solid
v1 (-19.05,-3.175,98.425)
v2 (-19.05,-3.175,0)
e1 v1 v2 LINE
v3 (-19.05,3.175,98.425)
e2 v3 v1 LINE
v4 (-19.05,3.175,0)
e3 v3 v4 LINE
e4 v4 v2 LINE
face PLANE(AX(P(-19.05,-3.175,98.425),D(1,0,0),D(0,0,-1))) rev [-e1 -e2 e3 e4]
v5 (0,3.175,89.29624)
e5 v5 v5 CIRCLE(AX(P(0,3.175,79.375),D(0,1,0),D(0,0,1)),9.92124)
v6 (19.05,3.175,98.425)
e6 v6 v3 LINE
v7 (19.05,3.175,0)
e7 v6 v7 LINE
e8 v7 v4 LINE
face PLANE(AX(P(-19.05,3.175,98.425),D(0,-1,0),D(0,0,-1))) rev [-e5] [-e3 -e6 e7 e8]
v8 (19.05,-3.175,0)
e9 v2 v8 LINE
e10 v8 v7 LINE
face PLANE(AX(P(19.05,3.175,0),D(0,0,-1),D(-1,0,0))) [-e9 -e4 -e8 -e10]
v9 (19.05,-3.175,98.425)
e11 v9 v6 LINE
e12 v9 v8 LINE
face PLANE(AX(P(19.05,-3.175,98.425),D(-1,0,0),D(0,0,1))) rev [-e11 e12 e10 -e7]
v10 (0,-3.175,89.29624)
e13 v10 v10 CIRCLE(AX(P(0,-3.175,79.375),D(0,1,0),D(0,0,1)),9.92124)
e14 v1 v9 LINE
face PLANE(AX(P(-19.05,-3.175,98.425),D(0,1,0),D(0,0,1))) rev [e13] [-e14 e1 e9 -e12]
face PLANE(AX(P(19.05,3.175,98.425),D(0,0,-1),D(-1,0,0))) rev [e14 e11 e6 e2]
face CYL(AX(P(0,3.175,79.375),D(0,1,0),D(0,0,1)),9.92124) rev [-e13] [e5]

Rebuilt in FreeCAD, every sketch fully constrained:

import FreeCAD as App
import Part
import Sketcher
Q = App.Units.Quantity


def add_polygon(sketch, points):
    """Adds a closed chain of lines whose ends are joined by coincident constraints."""
    first, n = sketch.GeometryCount, len(points)
    for a, b in zip(points, points[1:] + points[:1]):
        sketch.addGeometry(Part.LineSegment(App.Vector(*a, 0), App.Vector(*b, 0)), False)
    for i in range(n):
        sketch.addConstraint(Sketcher.Constraint("Coincident", first + i, 2, first + (i + 1) % n, 1))

doc = App.newDocument("Part")
body = doc.addObject("PartDesign::Body", "Body")

# Sketch on XY plane
sketch1 = doc.addObject("Sketcher::SketchObject", "Sketch")
body.addObject(sketch1)
sketch1.AttachmentSupport = (doc.XY_Plane, [""])
sketch1.MapMode = "FlatFace"
add_polygon(sketch1, [(-19, 3), (-19, -3), (19, -3), (19, 3)])  # lines 0-3
sketch1.addConstraint(Sketcher.Constraint("Vertical", 0))
sketch1.addConstraint(Sketcher.Constraint("Horizontal", 1))
sketch1.addConstraint(Sketcher.Constraint("Vertical", 2))
sketch1.addConstraint(Sketcher.Constraint("Horizontal", 3))
sketch1.addConstraint(Sketcher.Constraint("Symmetric", 0, 2, 2, 2, -1, 1))
sketch1.addConstraint(Sketcher.Constraint("DistanceX", 1, 1, 1, 2, Q("1.5 in")))
sketch1.addConstraint(Sketcher.Constraint("DistanceY", 0, 2, 0, 1, Q("0.25 in")))
pad1 = doc.addObject("PartDesign::Pad", "Pad")
body.addObject(pad1)
pad1.Profile = sketch1
pad1.Length = Q("3.875 in")

# Sketch on XZ plane
sketch2 = doc.addObject("Sketcher::SketchObject", "Sketch001")
body.addObject(sketch2)
sketch2.AttachmentSupport = (doc.XZ_Plane, [""])
sketch2.MapMode = "FlatFace"
sketch2.AttachmentOffset = App.Placement(App.Vector(0, 0, -0.125 * 25.4), App.Rotation())
sketch2.addGeometry(Part.Circle(App.Vector(0, 79, 0), App.Vector(0, 0, 1), 10), False)
sketch2.addConstraint(Sketcher.Constraint("PointOnObject", 0, 3, -2))
sketch2.addConstraint(Sketcher.Constraint("Diameter", 0, Q("0.7812 in")))
sketch2.addConstraint(Sketcher.Constraint("DistanceY", -1, 1, 0, 3, Q("3.125 in")))
doc.recompute()
hole = doc.addObject("PartDesign::Hole", "Hole")
body.addObject(hole)
hole.Profile = sketch2
hole.ThreadType = "None"
hole.Diameter = Q("0.7812 in")
hole.DepthType = "Dimension"
hole.Depth = Q("0.63 in")
hole.DrillPoint = "Angled"
hole.DrillPointAngle = 118
hole.Reversed = True

doc.recompute()
